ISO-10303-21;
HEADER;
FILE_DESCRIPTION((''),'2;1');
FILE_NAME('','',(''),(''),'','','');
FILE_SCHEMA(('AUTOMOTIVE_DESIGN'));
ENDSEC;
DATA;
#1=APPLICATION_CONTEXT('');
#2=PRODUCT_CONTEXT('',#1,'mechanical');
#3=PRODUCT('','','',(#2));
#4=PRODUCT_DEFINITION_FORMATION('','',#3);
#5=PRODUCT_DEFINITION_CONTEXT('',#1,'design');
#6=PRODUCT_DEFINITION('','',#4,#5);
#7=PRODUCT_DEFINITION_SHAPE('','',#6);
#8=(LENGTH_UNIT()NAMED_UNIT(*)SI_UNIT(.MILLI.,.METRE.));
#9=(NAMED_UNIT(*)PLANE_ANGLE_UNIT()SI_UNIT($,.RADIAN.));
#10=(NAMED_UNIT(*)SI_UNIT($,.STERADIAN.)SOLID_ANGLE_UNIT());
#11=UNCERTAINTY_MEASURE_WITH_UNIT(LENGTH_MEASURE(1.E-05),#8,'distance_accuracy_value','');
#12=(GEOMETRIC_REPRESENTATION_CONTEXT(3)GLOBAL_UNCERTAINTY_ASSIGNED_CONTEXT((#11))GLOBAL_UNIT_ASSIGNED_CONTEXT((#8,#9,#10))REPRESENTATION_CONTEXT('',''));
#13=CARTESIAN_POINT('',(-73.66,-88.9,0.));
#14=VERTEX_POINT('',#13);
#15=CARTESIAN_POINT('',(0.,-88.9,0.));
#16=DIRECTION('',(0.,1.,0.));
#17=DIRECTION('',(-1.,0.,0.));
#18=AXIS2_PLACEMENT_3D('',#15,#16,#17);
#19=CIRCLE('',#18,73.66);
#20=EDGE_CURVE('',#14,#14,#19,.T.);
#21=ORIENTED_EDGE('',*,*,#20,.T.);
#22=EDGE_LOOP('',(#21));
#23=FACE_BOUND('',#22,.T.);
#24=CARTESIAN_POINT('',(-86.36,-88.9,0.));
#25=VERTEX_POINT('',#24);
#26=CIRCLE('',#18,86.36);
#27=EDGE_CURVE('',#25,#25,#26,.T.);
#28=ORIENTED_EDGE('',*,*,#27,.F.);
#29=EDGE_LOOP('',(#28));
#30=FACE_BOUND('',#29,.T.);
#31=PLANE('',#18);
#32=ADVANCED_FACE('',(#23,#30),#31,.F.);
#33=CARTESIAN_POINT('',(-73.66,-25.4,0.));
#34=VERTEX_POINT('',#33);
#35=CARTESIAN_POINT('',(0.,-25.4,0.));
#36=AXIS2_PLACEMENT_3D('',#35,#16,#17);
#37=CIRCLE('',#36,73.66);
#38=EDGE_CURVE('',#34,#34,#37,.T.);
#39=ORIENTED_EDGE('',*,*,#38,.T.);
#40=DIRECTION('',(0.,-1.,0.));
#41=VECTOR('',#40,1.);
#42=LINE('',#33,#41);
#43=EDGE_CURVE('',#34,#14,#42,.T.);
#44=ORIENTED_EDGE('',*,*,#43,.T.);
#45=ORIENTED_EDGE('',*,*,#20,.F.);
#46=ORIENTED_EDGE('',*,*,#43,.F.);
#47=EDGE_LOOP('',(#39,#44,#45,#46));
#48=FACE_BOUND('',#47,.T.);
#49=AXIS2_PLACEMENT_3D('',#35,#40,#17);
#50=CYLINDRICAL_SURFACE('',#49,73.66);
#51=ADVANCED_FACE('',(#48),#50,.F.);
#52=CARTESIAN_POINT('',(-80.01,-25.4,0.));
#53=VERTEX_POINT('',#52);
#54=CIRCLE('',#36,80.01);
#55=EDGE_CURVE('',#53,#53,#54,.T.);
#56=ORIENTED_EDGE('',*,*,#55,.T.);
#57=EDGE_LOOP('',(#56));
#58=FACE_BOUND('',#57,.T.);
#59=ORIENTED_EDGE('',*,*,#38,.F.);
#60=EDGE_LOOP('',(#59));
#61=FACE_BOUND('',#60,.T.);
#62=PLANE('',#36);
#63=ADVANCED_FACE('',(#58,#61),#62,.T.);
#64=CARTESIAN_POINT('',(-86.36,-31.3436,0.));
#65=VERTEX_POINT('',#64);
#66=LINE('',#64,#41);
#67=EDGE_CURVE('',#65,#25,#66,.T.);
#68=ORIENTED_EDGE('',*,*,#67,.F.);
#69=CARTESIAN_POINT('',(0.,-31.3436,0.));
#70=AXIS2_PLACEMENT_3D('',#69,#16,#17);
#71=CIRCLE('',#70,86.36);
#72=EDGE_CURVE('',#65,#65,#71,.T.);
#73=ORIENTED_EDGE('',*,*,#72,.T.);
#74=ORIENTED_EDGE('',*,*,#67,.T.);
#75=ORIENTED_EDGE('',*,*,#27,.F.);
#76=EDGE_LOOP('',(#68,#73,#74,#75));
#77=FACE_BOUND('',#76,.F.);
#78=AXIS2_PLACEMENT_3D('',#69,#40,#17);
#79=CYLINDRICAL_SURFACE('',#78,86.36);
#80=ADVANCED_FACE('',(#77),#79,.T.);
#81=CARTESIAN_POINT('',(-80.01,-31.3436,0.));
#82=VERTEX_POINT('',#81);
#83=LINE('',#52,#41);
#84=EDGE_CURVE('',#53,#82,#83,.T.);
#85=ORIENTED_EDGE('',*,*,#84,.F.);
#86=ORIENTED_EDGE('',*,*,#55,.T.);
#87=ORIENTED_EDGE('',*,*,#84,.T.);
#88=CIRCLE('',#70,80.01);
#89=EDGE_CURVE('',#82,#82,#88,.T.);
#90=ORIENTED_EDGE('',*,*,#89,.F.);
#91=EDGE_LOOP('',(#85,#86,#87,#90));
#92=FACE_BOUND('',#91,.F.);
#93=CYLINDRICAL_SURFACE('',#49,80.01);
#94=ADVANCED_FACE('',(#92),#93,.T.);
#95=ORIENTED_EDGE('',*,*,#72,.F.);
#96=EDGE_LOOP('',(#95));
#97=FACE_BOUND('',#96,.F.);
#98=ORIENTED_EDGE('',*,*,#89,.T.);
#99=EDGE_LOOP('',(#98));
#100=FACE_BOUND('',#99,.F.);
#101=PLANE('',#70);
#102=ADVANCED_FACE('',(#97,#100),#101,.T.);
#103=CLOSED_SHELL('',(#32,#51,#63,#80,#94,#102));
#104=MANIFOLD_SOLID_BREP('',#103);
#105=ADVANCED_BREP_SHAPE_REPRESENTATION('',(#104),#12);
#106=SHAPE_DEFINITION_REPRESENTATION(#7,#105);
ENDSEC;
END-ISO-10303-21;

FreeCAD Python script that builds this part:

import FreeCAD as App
import Part
import Sketcher
from FreeCAD import Vector
Q = App.Units.Quantity


def add_polygon(sketch, points):
    """Adds a closed chain of lines whose ends are joined by coincident constraints."""
    first, n = sketch.GeometryCount, len(points)
    for a, b in zip(points, points[1:] + points[:1]):
        sketch.addGeometry(Part.LineSegment(App.Vector(*a, 0), App.Vector(*b, 0)), False)
    for i in range(n):
        sketch.addConstraint(Sketcher.Constraint("Coincident", first + i, 2, first + (i + 1) % n, 1))

doc = App.newDocument("Part")
params = doc.addObject("Spreadsheet::Sheet", "Params")
for row, (alias, value) in enumerate([
    ("sketch1_width", "0.5 in"),
    ("sketch1_height", "2.5 in"),
    ("sketch1_height2", "0.234 in"),
    ("revolution_angle", "360 deg"),
], start=1):
    params.set(f"A{row}", alias)
    params.set(f"B{row}", "=" + value)
    params.setAlias(f"B{row}", alias)

body = doc.addObject("PartDesign::Body", "Body")

sketch1 = body.newObject("Sketcher::SketchObject", "Sketch")
sketch1.AttachmentSupport = (doc.getObject("XY_Plane"), [""])
sketch1.MapMode = "FlatFace"
add_polygon(sketch1, [(-74, -25), (-80, -25), (-80, -31), (-86, -31), (-86, -89), (-74, -89)])
sketch1.addConstraint([
    Sketcher.Constraint("Horizontal", 0),
    Sketcher.Constraint("Vertical", 1),
    Sketcher.Constraint("Horizontal", 2),
    Sketcher.Constraint("Vertical", 3),
    Sketcher.Constraint("Horizontal", 4),
    Sketcher.Constraint("Vertical", 5),
    Sketcher.Constraint("Equal", 0, 2),
    Sketcher.Constraint("DistanceX", 4, 1, 4, 2, Q("0.5 in")),
    Sketcher.Constraint("DistanceY", 5, 1, 5, 2, Q("2.5 in")),
    Sketcher.Constraint("DistanceY", 0, 2, -1, 1, Q("1 in")),
    Sketcher.Constraint("DistanceX", 2, 2, -1, 1, Q("3.4 in")),
    Sketcher.Constraint("DistanceY", 1, 2, 1, 1, Q("0.234 in")),
])
sketch1.setExpression("Constraints[13]", "Params.sketch1_width")
sketch1.setExpression("Constraints[14]", "Params.sketch1_height")
sketch1.setExpression("Constraints[17]", "Params.sketch1_height2")
revolution = body.newObject("PartDesign::Revolution", "Revolution")
revolution.Profile = sketch1
revolution.ReferenceAxis = (sketch1, ["V_Axis"])
revolution.setExpression("Angle", "Params.revolution_angle")

doc.recompute()
